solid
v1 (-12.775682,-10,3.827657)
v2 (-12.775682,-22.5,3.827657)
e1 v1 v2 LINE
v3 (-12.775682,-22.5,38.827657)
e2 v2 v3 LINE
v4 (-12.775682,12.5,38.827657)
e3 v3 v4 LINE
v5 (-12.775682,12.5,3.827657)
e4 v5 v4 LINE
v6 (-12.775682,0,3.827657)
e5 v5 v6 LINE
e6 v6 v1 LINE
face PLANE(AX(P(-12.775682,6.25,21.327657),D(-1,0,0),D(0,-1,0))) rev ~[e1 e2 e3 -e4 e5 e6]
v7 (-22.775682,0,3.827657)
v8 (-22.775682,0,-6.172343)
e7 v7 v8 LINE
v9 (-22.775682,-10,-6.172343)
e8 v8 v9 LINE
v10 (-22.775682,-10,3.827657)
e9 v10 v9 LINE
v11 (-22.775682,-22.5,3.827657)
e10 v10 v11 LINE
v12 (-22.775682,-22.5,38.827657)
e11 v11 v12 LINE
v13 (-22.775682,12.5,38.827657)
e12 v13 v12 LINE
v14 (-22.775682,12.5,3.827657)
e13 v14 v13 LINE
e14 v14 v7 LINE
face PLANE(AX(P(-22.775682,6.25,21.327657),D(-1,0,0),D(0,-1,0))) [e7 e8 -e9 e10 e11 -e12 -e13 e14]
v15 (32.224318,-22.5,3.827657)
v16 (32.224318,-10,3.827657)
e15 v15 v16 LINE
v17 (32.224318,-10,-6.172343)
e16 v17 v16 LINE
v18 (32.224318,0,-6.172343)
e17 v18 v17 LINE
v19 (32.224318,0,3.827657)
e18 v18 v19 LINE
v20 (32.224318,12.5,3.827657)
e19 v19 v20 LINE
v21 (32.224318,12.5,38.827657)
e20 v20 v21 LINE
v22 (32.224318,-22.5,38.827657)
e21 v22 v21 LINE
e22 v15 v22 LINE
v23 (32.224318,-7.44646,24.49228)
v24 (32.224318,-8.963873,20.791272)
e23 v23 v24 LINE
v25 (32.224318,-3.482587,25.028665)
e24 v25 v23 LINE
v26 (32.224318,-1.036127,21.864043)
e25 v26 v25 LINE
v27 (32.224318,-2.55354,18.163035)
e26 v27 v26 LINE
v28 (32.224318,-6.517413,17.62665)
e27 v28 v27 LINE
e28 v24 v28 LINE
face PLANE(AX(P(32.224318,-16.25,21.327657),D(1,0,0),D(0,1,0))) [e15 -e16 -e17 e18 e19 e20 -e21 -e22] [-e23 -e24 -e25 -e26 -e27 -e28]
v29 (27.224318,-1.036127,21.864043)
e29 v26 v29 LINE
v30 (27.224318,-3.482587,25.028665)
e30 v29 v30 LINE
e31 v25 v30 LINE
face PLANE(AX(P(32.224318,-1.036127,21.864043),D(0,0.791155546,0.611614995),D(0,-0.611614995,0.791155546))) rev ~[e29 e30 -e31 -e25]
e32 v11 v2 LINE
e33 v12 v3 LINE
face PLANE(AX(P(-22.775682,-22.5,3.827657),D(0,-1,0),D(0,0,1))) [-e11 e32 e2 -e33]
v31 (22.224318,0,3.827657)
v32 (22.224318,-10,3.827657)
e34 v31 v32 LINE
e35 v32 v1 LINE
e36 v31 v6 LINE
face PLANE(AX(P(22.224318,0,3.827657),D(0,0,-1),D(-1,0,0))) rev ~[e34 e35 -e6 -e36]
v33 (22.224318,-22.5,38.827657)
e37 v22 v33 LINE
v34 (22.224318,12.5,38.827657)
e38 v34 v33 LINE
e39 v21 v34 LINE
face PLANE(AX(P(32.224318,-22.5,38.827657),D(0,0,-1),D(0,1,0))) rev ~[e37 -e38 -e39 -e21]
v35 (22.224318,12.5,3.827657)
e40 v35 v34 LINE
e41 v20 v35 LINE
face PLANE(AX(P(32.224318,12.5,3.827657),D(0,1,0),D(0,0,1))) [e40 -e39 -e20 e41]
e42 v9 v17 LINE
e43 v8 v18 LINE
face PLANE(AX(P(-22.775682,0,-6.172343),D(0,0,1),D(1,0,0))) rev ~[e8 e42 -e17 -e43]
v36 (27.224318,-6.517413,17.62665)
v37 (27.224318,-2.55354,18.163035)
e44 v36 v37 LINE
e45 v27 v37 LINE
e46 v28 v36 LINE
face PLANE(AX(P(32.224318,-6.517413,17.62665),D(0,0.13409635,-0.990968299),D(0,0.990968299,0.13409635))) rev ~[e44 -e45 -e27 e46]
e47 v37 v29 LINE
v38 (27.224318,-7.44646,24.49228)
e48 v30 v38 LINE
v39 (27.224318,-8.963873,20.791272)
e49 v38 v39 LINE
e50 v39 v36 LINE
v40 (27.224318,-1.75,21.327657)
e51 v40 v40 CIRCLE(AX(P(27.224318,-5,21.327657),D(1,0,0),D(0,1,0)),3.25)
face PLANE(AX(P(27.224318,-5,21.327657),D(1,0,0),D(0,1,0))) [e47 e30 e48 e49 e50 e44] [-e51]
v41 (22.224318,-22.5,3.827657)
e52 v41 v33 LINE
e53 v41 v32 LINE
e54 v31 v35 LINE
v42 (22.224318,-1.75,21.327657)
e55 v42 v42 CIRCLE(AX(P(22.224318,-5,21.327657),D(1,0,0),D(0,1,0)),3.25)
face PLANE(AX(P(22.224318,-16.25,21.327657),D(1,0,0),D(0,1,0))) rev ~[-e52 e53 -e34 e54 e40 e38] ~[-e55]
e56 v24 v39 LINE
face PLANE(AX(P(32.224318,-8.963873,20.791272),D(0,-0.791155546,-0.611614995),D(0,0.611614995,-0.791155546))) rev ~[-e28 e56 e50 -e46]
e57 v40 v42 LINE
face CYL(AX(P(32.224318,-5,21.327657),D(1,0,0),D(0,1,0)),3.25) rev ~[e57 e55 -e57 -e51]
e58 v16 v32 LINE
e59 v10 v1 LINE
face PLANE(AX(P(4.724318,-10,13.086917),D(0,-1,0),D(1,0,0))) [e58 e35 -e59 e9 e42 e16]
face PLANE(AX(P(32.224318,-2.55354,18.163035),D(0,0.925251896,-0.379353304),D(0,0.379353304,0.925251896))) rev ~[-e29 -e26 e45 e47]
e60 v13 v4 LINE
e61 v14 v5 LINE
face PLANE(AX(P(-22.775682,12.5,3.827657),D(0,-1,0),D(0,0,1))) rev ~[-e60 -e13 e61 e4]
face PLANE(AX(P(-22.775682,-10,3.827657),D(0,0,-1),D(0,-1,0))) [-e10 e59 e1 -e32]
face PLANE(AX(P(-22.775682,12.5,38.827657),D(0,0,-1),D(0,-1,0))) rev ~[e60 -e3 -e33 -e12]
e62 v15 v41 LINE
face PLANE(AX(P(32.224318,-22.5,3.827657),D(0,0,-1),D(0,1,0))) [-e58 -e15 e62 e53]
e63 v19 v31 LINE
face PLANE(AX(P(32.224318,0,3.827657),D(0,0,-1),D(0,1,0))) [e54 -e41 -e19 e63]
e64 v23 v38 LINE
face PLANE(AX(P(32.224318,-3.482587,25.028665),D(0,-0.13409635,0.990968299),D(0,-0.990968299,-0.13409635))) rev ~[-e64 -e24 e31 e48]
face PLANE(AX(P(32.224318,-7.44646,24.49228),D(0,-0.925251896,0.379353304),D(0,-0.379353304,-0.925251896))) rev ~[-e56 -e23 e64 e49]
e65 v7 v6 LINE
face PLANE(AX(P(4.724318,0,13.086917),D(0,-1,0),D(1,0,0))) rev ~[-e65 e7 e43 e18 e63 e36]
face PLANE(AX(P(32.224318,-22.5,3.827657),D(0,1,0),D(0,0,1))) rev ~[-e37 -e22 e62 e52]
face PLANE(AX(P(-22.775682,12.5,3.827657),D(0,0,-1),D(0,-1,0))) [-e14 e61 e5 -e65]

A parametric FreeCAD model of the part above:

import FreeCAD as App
import Part
import Sketcher

V = App.Vector
Q = App.Units.Quantity

doc = App.newDocument("Part")
body = doc.addObject("PartDesign::Body", "Body")

# Sketch on XZ plane
sketch1 = doc.addObject("Sketcher::SketchObject", "Sketch")
body.addObject(sketch1)
sketch1.AttachmentSupport = (doc.XZ_Plane, [""])
sketch1.MapMode = "FlatFace"
sketch1.addGeometry([
    Part.LineSegment(V(-12.775682, 38.827657, 0), V(-22.775682, 38.827657, 0)),  # 0
    Part.LineSegment(V(-22.775682, 38.827657, 0), V(-22.775682, -6.172343, 0)),  # 1
    Part.LineSegment(V(-22.775682, -6.172343, 0), V(32.224318, -6.172343, 0)),  # 2
    Part.LineSegment(V(32.224318, -6.172343, 0), V(32.224318, 38.827657, 0)),  # 3
    Part.LineSegment(V(32.224318, 38.827657, 0), V(22.224318, 38.827657, 0)),  # 4
    Part.LineSegment(V(22.224318, 38.827657, 0), V(22.224318, 3.827657, 0)),  # 5
    Part.LineSegment(V(22.224318, 3.827657, 0), V(-12.775682, 3.827657, 0)),  # 6
    Part.LineSegment(V(-12.775682, 3.827657, 0), V(-12.775682, 38.827657, 0)),  # 7
], False)
sketch1.addConstraint([
    Sketcher.Constraint("Coincident", 0, 2, 1, 1),
    Sketcher.Constraint("Coincident", 1, 2, 2, 1),
    Sketcher.Constraint("Coincident", 2, 2, 3, 1),
    Sketcher.Constraint("Coincident", 3, 2, 4, 1),
    Sketcher.Constraint("Coincident", 4, 2, 5, 1),
    Sketcher.Constraint("Coincident", 5, 2, 6, 1),
    Sketcher.Constraint("Coincident", 6, 2, 7, 1),
    Sketcher.Constraint("Coincident", 7, 2, 0, 1),
    Sketcher.Constraint("Horizontal", 0),
    Sketcher.Constraint("Vertical", 1),
    Sketcher.Constraint("Horizontal", 2),
    Sketcher.Constraint("Vertical", 3),
    Sketcher.Constraint("Horizontal", 4),
    Sketcher.Constraint("Vertical", 5),
    Sketcher.Constraint("Horizontal", 6),
    Sketcher.Constraint("Vertical", 7),
    Sketcher.Constraint("Horizontal", 0, 2, 3, 2),
    Sketcher.Constraint("Equal", 0, 4),
    Sketcher.Constraint("Equal", 6, 5),
    Sketcher.Constraint("DistanceX", 0, 2, 0, 1, Q("10 mm")),
    Sketcher.Constraint("DistanceX", 2, 1, 2, 2, Q("55 mm")),
    Sketcher.Constraint("DistanceY", 1, 2, 1, 1, Q("45 mm")),
    Sketcher.Constraint("DistanceX", 0, 2, -1, 1, Q("22.775682 mm")),
    Sketcher.Constraint("DistanceY", -1, 1, 0, 2, Q("38.827657 mm")),
])
pad1 = doc.addObject("PartDesign::Pad", "Pad")
body.addObject(pad1)
pad1.Profile = sketch1
pad1.Length = 10

# Sketch on YZ plane
sketch2 = doc.addObject("Sketcher::SketchObject", "Sketch001")
body.addObject(sketch2)
sketch2.AttachmentSupport = (doc.YZ_Plane, [""])
sketch2.MapMode = "FlatFace"
sketch2.AttachmentOffset = App.Placement(V(0, 0, 32.224318), App.Rotation())
sketch2.addGeometry([
    Part.LineSegment(V(-22.5, 38.827657, 0), V(-22.5, 3.827657, 0)),  # 0
    Part.LineSegment(V(-22.5, 3.827657, 0), V(-10, 3.827657, 0)),  # 1
    Part.LineSegment(V(-10, 3.827657, 0), V(-10, 38.827657, 0)),  # 2
    Part.LineSegment(V(-10, 38.827657, 0), V(-22.5, 38.827657, 0)),  # 3
    Part.LineSegment(V(0, 38.827657, 0), V(0, 3.827657, 0)),  # 4
    Part.LineSegment(V(0, 3.827657, 0), V(12.5, 3.827657, 0)),  # 5
    Part.LineSegment(V(12.5, 3.827657, 0), V(12.5, 38.827657, 0)),  # 6
    Part.LineSegment(V(12.5, 38.827657, 0), V(0, 38.827657, 0)),  # 7
], False)
sketch2.addConstraint([
    Sketcher.Constraint("Coincident", 0, 2, 1, 1),
    Sketcher.Constraint("Coincident", 1, 2, 2, 1),
    Sketcher.Constraint("Coincident", 2, 2, 3, 1),
    Sketcher.Constraint("Coincident", 3, 2, 0, 1),
    Sketcher.Constraint("Coincident", 4, 2, 5, 1),
    Sketcher.Constraint("Coincident", 5, 2, 6, 1),
    Sketcher.Constraint("Coincident", 6, 2, 7, 1),
    Sketcher.Constraint("Coincident", 7, 2, 4, 1),
    Sketcher.Constraint("Vertical", 0),
    Sketcher.Constraint("Horizontal", 1),
    Sketcher.Constraint("Vertical", 2),
    Sketcher.Constraint("Horizontal", 3),
    Sketcher.Constraint("Vertical", 4),
    Sketcher.Constraint("Horizontal", 5),
    Sketcher.Constraint("Vertical", 6),
    Sketcher.Constraint("Horizontal", 7),
    Sketcher.Constraint("PointOnObject", 4, 2, -2),
    Sketcher.Constraint("Horizontal", 1, 2, 4, 2),
    Sketcher.Constraint("Horizontal", 3, 2, 6, 2),
    Sketcher.Constraint("Equal", 3, 5),
    Sketcher.Constraint("DistanceY", 0, 2, 0, 1, Q("35 mm")),
    Sketcher.Constraint("DistanceX", 1, 1, 1, 2, Q("12.5 mm")),
    Sketcher.Constraint("DistanceX", 1, 2, -1, 1, Q("10 mm")),
    Sketcher.Constraint("DistanceY", -1, 1, 0, 2, Q("3.827657 mm")),
])
pad2 = doc.addObject("PartDesign::Pad", "Pad001")
body.addObject(pad2)
pad2.Profile = sketch2
pad2.Length = 10
pad2.Reversed = True

# Sketch on YZ plane
sketch3 = doc.addObject("Sketcher::SketchObject", "Sketch002")
body.addObject(sketch3)
sketch3.AttachmentSupport = (doc.YZ_Plane, [""])
sketch3.MapMode = "FlatFace"
sketch3.AttachmentOffset = App.Placement(V(0, 0, -22.775682), App.Rotation())
sketch3.addGeometry([
    Part.LineSegment(V(12.5, 38.827657, 0), V(12.5, 3.827657, 0)),  # 0
    Part.LineSegment(V(12.5, 3.827657, 0), V(0, 3.827657, 0)),  # 1
    Part.LineSegment(V(0, 3.827657, 0), V(0, 38.827657, 0)),  # 2
    Part.LineSegment(V(0, 38.827657, 0), V(12.5, 38.827657, 0)),  # 3
    Part.LineSegment(V(-10, 38.827657, 0), V(-10, 3.827657, 0)),  # 4
    Part.LineSegment(V(-10, 3.827657, 0), V(-22.5, 3.827657, 0)),  # 5
    Part.LineSegment(V(-22.5, 3.827657, 0), V(-22.5, 38.827657, 0)),  # 6
    Part.LineSegment(V(-22.5, 38.827657, 0), V(-10, 38.827657, 0)),  # 7
], False)
sketch3.addConstraint([
    Sketcher.Constraint("Coincident", 0, 2, 1, 1),
    Sketcher.Constraint("Coincident", 1, 2, 2, 1),
    Sketcher.Constraint("Coincident", 2, 2, 3, 1),
    Sketcher.Constraint("Coincident", 3, 2, 0, 1),
    Sketcher.Constraint("Coincident", 4, 2, 5, 1),
    Sketcher.Constraint("Coincident", 5, 2, 6, 1),
    Sketcher.Constraint("Coincident", 6, 2, 7, 1),
    Sketcher.Constraint("Coincident", 7, 2, 4, 1),
    Sketcher.Constraint("Vertical", 0),
    Sketcher.Constraint("Horizontal", 1),
    Sketcher.Constraint("Vertical", 2),
    Sketcher.Constraint("Horizontal", 3),
    Sketcher.Constraint("Vertical", 4),
    Sketcher.Constraint("Horizontal", 5),
    Sketcher.Constraint("Vertical", 6),
    Sketcher.Constraint("Horizontal", 7),
    Sketcher.Constraint("PointOnObject", 1, 2, -2),
    Sketcher.Constraint("Horizontal", 1, 2, 4, 2),
    Sketcher.Constraint("Horizontal", 3, 2, 6, 2),
    Sketcher.Constraint("Equal", 3, 5),
    Sketcher.Constraint("DistanceY", 0, 2, 0, 1, Q("35 mm")),
    Sketcher.Constraint("DistanceX", 1, 2, 1, 1, Q("12.5 mm")),
    Sketcher.Constraint("DistanceX", 4, 2, -1, 1, Q("10 mm")),
    Sketcher.Constraint("DistanceY", -1, 1, 0, 2, Q("3.827657 mm")),
])
pad3 = doc.addObject("PartDesign::Pad", "Pad002")
body.addObject(pad3)
pad3.Profile = sketch3
pad3.Length = 10

# Sketch on YZ plane
sketch4 = doc.addObject("Sketcher::SketchObject", "Sketch003")
body.addObject(sketch4)
sketch4.AttachmentSupport = (doc.YZ_Plane, [""])
sketch4.MapMode = "FlatFace"
sketch4.AttachmentOffset = App.Placement(V(0, 0, 32.224318), App.Rotation())
sketch4.addGeometry(Part.Circle(V(-5, 21.327657, 0), V(0, 0, 1), 3.25), False)
sketch4.addConstraint([
    Sketcher.Constraint("Diameter", 0, Q("6.5 mm")),
    Sketcher.Constraint("DistanceX", 0, 3, -1, 1, Q("5 mm")),
    Sketcher.Constraint("DistanceY", -1, 1, 0, 3, Q("21.327657 mm")),
])
pocket1 = doc.addObject("PartDesign::Pocket", "Pocket")
body.addObject(pocket1)
pocket1.Profile = sketch4
pocket1.Length = 10

# Sketch on YZ plane
sketch5 = doc.addObject("Sketcher::SketchObject", "Sketch004")
body.addObject(sketch5)
sketch5.AttachmentSupport = (doc.YZ_Plane, [""])
sketch5.MapMode = "FlatFace"
sketch5.AttachmentOffset = App.Placement(V(0, 0, 32.224318), App.Rotation())
sketch5.addGeometry([
    Part.LineSegment(V(-1.036127, 21.864043, 0), V(-3.482587, 25.028665, 0)),  # 0
    Part.LineSegment(V(-3.482587, 25.028665, 0), V(-7.44646, 24.49228, 0)),  # 1
    Part.LineSegment(V(-7.44646, 24.49228, 0), V(-8.963873, 20.791272, 0)),  # 2
    Part.LineSegment(V(-8.963873, 20.791272, 0), V(-6.517413, 17.62665, 0)),  # 3
    Part.LineSegment(V(-6.517413, 17.62665, 0), V(-2.55354, 18.163035, 0)),  # 4
    Part.LineSegment(V(-2.55354, 18.163035, 0), V(-1.036127, 21.864043, 0)),  # 5
    Part.Circle(V(-5, 21.327657, 0), V(0, 0, 1), 3.25),  # 6
], False)
sketch5.addConstraint([
    Sketcher.Constraint("Coincident", 0, 2, 1, 1),
    Sketcher.Constraint("Coincident", 1, 2, 2, 1),
    Sketcher.Constraint("Coincident", 2, 2, 3, 1),
    Sketcher.Constraint("Coincident", 3, 2, 4, 1),
    Sketcher.Constraint("Coincident", 4, 2, 5, 1),
    Sketcher.Constraint("Coincident", 5, 2, 0, 1),
    Sketcher.Constraint("Parallel", 0, 3),
    Sketcher.Constraint("Parallel", 1, 4),
    Sketcher.Constraint("Parallel", 2, 5),
    Sketcher.Constraint("Equal", 0, 1),
    Sketcher.Constraint("Equal", 1, 2),
    Sketcher.Constraint("Equal", 2, 3),
    Sketcher.Constraint("Diameter", 6, Q("6.5 mm")),
    Sketcher.Constraint("Distance", 0, Q("4 mm")),
    Sketcher.Constraint("DistanceX", 6, 3, -1, 1, Q("5 mm")),
    Sketcher.Constraint("DistanceX", 1, 2, -1, 1, Q("7.44646 mm")),
    Sketcher.Constraint("DistanceY", -1, 1, 1, 2, Q("24.49228 mm")),
    Sketcher.Constraint("DistanceY", -1, 1, 2, 2, Q("20.791272 mm")),
    Sketcher.Constraint("DistanceY", -1, 1, 3, 2, Q("17.62665 mm")),
    Sketcher.Constraint("DistanceX", 4, 2, -1, 1, Q("2.55354 mm")),
    Sketcher.Constraint("DistanceY", -1, 1, 6, 3, Q("21.327657 mm")),
])
pocket2 = doc.addObject("PartDesign::Pocket", "Pocket001")
body.addObject(pocket2)
pocket2.Profile = sketch5
pocket2.Length = 5

doc.recompute()
